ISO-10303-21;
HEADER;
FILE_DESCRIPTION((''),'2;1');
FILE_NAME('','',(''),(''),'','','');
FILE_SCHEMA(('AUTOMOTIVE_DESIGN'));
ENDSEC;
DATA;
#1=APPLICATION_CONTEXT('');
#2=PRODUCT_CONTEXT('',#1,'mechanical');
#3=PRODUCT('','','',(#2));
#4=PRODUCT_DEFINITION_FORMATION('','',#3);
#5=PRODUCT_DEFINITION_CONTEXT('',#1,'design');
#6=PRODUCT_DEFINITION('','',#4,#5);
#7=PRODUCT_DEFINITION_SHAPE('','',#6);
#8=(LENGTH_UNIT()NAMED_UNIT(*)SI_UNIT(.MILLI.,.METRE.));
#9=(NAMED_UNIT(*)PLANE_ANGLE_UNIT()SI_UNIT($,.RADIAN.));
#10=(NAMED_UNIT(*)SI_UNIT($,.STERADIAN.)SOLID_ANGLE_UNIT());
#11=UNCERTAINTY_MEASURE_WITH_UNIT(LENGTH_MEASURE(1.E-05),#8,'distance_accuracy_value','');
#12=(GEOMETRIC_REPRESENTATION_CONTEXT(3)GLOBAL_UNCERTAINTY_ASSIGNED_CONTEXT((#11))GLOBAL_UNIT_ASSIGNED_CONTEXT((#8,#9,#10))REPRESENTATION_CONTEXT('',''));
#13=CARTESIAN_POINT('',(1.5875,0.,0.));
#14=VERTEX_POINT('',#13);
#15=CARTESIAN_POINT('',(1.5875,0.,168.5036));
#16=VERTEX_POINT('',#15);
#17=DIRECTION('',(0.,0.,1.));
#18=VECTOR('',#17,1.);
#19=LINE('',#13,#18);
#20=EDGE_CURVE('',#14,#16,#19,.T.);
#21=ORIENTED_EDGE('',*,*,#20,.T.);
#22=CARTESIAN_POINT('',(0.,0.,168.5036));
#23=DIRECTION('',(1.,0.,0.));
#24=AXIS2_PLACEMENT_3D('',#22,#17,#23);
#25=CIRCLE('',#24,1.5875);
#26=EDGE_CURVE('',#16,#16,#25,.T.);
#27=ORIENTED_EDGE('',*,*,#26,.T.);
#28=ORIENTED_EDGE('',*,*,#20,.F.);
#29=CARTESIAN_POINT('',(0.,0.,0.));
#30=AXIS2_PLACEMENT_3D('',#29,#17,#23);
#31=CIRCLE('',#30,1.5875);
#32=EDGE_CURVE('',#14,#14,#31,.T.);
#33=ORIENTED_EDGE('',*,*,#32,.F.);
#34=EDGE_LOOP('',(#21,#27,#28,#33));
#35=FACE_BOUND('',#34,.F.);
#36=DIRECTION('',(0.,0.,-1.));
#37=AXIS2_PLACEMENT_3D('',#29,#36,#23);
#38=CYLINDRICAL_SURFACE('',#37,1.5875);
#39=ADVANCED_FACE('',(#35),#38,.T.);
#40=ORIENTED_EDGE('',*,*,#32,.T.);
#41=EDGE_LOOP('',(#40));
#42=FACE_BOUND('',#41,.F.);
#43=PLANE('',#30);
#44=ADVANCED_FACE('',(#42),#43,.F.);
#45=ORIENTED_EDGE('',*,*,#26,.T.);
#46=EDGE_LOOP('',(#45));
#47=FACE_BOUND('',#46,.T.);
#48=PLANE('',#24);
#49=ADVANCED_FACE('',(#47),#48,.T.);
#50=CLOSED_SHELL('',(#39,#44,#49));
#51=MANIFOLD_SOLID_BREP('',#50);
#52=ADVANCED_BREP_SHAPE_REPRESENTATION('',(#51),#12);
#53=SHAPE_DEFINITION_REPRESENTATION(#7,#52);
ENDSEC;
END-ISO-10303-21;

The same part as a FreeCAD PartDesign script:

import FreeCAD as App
import Part
import Sketcher

V = App.Vector
Q = App.Units.Quantity

doc = App.newDocument("Part")
params = doc.addObject("Spreadsheet::Sheet", "Params")
for row, (alias, value) in enumerate([
    ("sketch1_diameter", "0.125 in"),
    ("pad1_length", "6.634 in"),
], start=1):
    params.set(f"A{row}", alias)
    params.set(f"B{row}", "=" + value)
    params.setAlias(f"B{row}", alias)

body = doc.addObject("PartDesign::Body", "Body")

# Sketch on XY plane
sketch1 = body.newObject("Sketcher::SketchObject", "Sketch")
sketch1.AttachmentSupport = (doc.getObject("XY_Plane"), [""])
sketch1.MapMode = "FlatFace"
sketch1.addGeometry(Part.Circle(V(0, 0, 0), V(0, 0, 1), 1.6), False)
sketch1.addConstraint(Sketcher.Constraint("Coincident", 0, 3, -1, 1))
sketch1.addConstraint(Sketcher.Constraint("Diameter", 0, Q("0.125 in")))
sketch1.setExpression("Constraints[1]", "Params.sketch1_diameter")
pad1 = body.newObject("PartDesign::Pad", "Pad")
pad1.Profile = sketch1
pad1.setExpression("Length", "Params.pad1_length")

doc.recompute()
